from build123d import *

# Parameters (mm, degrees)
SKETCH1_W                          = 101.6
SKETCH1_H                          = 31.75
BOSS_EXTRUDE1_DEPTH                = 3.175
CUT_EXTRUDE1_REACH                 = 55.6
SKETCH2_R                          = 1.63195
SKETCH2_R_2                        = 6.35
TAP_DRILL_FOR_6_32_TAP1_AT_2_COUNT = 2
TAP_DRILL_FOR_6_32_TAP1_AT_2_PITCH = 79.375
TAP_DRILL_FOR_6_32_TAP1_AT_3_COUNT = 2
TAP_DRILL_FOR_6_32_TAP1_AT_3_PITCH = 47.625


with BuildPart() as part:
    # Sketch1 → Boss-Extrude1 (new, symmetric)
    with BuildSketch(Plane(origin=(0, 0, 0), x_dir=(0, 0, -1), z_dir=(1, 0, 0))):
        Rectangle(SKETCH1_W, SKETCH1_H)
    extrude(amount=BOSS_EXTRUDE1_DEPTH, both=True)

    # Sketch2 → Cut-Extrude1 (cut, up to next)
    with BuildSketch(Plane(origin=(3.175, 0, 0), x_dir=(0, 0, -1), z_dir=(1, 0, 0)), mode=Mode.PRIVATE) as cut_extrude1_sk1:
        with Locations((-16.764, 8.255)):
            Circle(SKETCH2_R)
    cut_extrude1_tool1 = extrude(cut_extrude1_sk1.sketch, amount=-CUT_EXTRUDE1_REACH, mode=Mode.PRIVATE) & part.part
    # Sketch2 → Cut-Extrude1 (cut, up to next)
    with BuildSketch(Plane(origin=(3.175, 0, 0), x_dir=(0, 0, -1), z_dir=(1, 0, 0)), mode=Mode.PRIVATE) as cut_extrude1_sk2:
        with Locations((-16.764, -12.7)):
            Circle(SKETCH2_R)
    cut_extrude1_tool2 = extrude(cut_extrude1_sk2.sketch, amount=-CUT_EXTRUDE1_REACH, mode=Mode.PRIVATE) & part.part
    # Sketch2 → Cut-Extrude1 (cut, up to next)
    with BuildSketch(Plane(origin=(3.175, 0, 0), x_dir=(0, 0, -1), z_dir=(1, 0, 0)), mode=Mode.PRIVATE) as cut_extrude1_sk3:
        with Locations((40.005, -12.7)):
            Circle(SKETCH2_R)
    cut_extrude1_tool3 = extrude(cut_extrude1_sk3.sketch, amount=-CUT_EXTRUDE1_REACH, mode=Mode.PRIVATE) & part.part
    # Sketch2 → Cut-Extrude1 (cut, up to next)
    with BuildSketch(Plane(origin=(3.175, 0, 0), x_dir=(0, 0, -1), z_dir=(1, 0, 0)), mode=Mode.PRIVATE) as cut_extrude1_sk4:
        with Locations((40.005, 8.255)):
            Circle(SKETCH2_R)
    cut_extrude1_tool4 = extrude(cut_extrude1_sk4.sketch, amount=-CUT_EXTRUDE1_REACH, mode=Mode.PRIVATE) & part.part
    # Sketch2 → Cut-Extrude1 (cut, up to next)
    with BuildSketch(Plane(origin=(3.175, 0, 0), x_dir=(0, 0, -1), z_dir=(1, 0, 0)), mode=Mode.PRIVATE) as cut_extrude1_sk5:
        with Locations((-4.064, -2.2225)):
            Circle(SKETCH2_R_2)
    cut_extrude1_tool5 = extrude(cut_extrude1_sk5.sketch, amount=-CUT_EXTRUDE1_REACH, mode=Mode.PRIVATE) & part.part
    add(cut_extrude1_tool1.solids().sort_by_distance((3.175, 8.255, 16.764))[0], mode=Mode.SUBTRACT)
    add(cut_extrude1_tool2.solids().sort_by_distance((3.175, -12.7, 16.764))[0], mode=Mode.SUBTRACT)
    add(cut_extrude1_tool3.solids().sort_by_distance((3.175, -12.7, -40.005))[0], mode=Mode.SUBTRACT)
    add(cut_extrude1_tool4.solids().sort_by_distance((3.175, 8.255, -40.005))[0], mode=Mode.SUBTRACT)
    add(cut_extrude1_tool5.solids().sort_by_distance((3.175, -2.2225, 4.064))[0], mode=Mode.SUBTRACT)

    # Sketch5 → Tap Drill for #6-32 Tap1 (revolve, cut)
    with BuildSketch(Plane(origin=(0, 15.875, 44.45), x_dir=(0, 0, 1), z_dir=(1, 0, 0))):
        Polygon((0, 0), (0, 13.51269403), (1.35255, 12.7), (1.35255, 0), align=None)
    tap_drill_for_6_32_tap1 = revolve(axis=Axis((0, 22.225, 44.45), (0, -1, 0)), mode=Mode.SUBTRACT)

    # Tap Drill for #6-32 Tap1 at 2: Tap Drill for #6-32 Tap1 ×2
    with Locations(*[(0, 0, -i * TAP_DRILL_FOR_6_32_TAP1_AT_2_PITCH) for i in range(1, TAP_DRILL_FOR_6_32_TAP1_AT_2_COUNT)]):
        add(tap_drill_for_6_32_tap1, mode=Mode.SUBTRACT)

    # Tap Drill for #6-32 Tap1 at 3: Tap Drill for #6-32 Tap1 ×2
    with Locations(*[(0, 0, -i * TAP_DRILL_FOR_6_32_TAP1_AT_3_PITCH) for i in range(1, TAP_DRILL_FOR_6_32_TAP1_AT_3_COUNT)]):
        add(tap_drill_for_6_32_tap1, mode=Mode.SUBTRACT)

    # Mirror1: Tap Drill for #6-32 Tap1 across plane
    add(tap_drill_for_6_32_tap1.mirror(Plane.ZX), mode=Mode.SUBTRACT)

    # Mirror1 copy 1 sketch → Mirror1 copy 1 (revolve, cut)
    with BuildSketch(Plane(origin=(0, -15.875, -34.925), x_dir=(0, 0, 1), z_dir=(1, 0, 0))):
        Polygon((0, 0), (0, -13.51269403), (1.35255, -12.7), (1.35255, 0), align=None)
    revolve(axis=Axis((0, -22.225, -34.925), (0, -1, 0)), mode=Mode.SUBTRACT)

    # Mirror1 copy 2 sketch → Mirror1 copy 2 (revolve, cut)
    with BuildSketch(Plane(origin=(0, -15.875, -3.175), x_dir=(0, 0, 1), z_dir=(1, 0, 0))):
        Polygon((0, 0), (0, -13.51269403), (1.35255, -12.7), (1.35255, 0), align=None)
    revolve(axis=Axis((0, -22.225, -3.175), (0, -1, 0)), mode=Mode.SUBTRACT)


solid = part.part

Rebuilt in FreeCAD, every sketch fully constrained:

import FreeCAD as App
import Part
import Sketcher
Q = App.Units.Quantity


def add_polygon(sketch, points):
    """Adds a closed chain of lines whose ends are joined by coincident constraints."""
    first, n = sketch.GeometryCount, len(points)
    for a, b in zip(points, points[1:] + points[:1]):
        sketch.addGeometry(Part.LineSegment(App.Vector(*a, 0), App.Vector(*b, 0)), False)
    for i in range(n):
        sketch.addConstraint(Sketcher.Constraint("Coincident", first + i, 2, first + (i + 1) % n, 1))

doc = App.newDocument("Part")
params = doc.addObject("Spreadsheet::Sheet", "Params")
for row, (alias, value) in enumerate([
    ("sketch1_height", "4 in"),
    ("sketch1_width", "1.25 in"),
    ("pad1_length", "0.25 in"),
    ("sketch6_diameter", "0.5 in"),
    ("sketch7_width", "0.5 in"),
    ("groove_angle", "360 deg"),
    ("linearpattern_pitch", "3.125 in"),
    ("linearpattern2_pitch", "1.875 in"),
    ("sketch8_width", "0.5 in"),
    ("groove2_angle", "360 deg"),
    ("sketch9_width", "0.5 in"),
    ("groove3_angle", "360 deg"),
], start=1):
    params.set(f"A{row}", alias)
    params.set(f"B{row}", "=" + value)
    params.setAlias(f"B{row}", alias)

body = doc.addObject("PartDesign::Body", "Body")

# Sketch on YZ plane
sketch1 = doc.addObject("Sketcher::SketchObject", "Sketch")
body.addObject(sketch1)
sketch1.AttachmentSupport = (doc.YZ_Plane, [""])
sketch1.MapMode = "FlatFace"
add_polygon(sketch1, [(16, 51), (-16, 51), (-16, -51), (16, -51)])  # lines 0-3
sketch1.addConstraint([
    Sketcher.Constraint("Horizontal", 0),
    Sketcher.Constraint("Vertical", 1),
    Sketcher.Constraint("Horizontal", 2),
    Sketcher.Constraint("Vertical", 3),
    Sketcher.Constraint("Symmetric", 0, 2, 2, 2, -1, 1),
    Sketcher.Constraint("DistanceY", 1, 2, 1, 1, Q("4 in")),
    Sketcher.Constraint("DistanceX", 0, 2, 0, 1, Q("1.25 in")),
])
sketch1.setExpression("Constraints[9]", "Params.sketch1_height")
sketch1.setExpression("Constraints[10]", "Params.sketch1_width")
pad1 = doc.addObject("PartDesign::Pad", "Pad")
body.addObject(pad1)
pad1.Profile = sketch1
pad1.setExpression("Length", "Params.pad1_length")
pad1.Midplane = True

# Sketch on YZ plane
sketch2 = doc.addObject("Sketcher::SketchObject", "Sketch001")
body.addObject(sketch2)
sketch2.AttachmentSupport = (doc.YZ_Plane, [""])
sketch2.MapMode = "FlatFace"
sketch2.AttachmentOffset = App.Placement(App.Vector(0, 0, 0.125 * 25.4), App.Rotation())
sketch2.addGeometry(Part.Circle(App.Vector(8.3, 16.8, 0), App.Vector(0, 0, 1), 1.6), False)
sketch2.addConstraint([
    Sketcher.Constraint("Diameter", 0, Q("0.1285 in")),
    Sketcher.Constraint("DistanceY", -1, 1, 0, 3, Q("0.66 in")),
    Sketcher.Constraint("DistanceX", -1, 1, 0, 3, Q("0.325 in")),
])
pocket1 = doc.addObject("PartDesign::Pocket", "Pocket")
body.addObject(pocket1)
pocket1.Profile = sketch2
pocket1.Type = "UpToFirst"

# Sketch on YZ plane
sketch3 = doc.addObject("Sketcher::SketchObject", "Sketch002")
body.addObject(sketch3)
sketch3.AttachmentSupport = (doc.YZ_Plane, [""])
sketch3.MapMode = "FlatFace"
sketch3.AttachmentOffset = App.Placement(App.Vector(0, 0, 0.125 * 25.4), App.Rotation())
sketch3.addGeometry(Part.Circle(App.Vector(-12.7, 16.8, 0), App.Vector(0, 0, 1), 1.6), False)
sketch3.addConstraint([
    Sketcher.Constraint("Diameter", 0, Q("0.1285 in")),
    Sketcher.Constraint("DistanceX", 0, 3, -1, 1, Q("0.5 in")),
    Sketcher.Constraint("DistanceY", -1, 1, 0, 3, Q("0.66 in")),
])
pocket2 = doc.addObject("PartDesign::Pocket", "Pocket001")
body.addObject(pocket2)
pocket2.Profile = sketch3
pocket2.Type = "UpToFirst"

# Sketch on YZ plane
sketch4 = doc.addObject("Sketcher::SketchObject", "Sketch003")
body.addObject(sketch4)
sketch4.AttachmentSupport = (doc.YZ_Plane, [""])
sketch4.MapMode = "FlatFace"
sketch4.AttachmentOffset = App.Placement(App.Vector(0, 0, 0.125 * 25.4), App.Rotation())
sketch4.addGeometry(Part.Circle(App.Vector(-12.7, -40, 0), App.Vector(0, 0, 1), 1.6), False)
sketch4.addConstraint([
    Sketcher.Constraint("Diameter", 0, Q("0.1285 in")),
    Sketcher.Constraint("DistanceX", 0, 3, -1, 1, Q("0.5 in")),
    Sketcher.Constraint("DistanceY", 0, 3, -1, 1, Q("1.575 in")),
])
pocket3 = doc.addObject("PartDesign::Pocket", "Pocket002")
body.addObject(pocket3)
pocket3.Profile = sketch4
pocket3.Type = "UpToFirst"

# Sketch on YZ plane
sketch5 = doc.addObject("Sketcher::SketchObject", "Sketch004")
body.addObject(sketch5)
sketch5.AttachmentSupport = (doc.YZ_Plane, [""])
sketch5.MapMode = "FlatFace"
sketch5.AttachmentOffset = App.Placement(App.Vector(0, 0, 0.125 * 25.4), App.Rotation())
sketch5.addGeometry(Part.Circle(App.Vector(8.3, -40, 0), App.Vector(0, 0, 1), 1.6), False)
sketch5.addConstraint([
    Sketcher.Constraint("Diameter", 0, Q("0.1285 in")),
    Sketcher.Constraint("DistanceX", -1, 1, 0, 3, Q("0.325 in")),
    Sketcher.Constraint("DistanceY", 0, 3, -1, 1, Q("1.575 in")),
])
pocket4 = doc.addObject("PartDesign::Pocket", "Pocket003")
body.addObject(pocket4)
pocket4.Profile = sketch5
pocket4.Type = "UpToFirst"

# Sketch on YZ plane
sketch6 = doc.addObject("Sketcher::SketchObject", "Sketch005")
body.addObject(sketch6)
sketch6.AttachmentSupport = (doc.YZ_Plane, [""])
sketch6.MapMode = "FlatFace"
sketch6.AttachmentOffset = App.Placement(App.Vector(0, 0, 0.125 * 25.4), App.Rotation())
sketch6.addGeometry(Part.Circle(App.Vector(-2, 4, 0), App.Vector(0, 0, 1), 6), False)
sketch6.addConstraint([
    Sketcher.Constraint("Diameter", 0, Q("0.5 in")),
    Sketcher.Constraint("DistanceY", -1, 1, 0, 3, Q("0.16 in")),
    Sketcher.Constraint("DistanceX", 0, 3, -1, 1, Q("0.0875 in")),
])
sketch6.setExpression("Constraints[0]", "Params.sketch6_diameter")
pocket5 = doc.addObject("PartDesign::Pocket", "Pocket004")
body.addObject(pocket5)
pocket5.Profile = sketch6
pocket5.Type = "UpToFirst"

# Sketch on YZ plane
sketch7 = doc.addObject("Sketcher::SketchObject", "Sketch006")
body.addObject(sketch7)
sketch7.AttachmentSupport = (doc.YZ_Plane, [""])
sketch7.MapMode = "FlatFace"
add_polygon(sketch7, [(2.4, 44.5), (15.9, 44.5), (15.9, 45.8), (3.2, 45.8)])  # lines 0-3
sketch7.addGeometry(Part.LineSegment(App.Vector(15.9, 44.5, 0), App.Vector(2.4, 44.5, 0)), True)  # axis
sketch7.addConstraint([
    Sketcher.Constraint("Horizontal", 0),
    Sketcher.Constraint("Vertical", 1),
    Sketcher.Constraint("Horizontal", 2),
    Sketcher.Constraint("Horizontal", 4),
    Sketcher.Constraint("Coincident", 4, 1, 0, 2),
    Sketcher.Constraint("Equal", 0, 4),
    Sketcher.Constraint("DistanceX", 2, 2, 2, 1, Q("0.5 in")),
    Sketcher.Constraint("Angle", 3, Q("-121 deg")),
    Sketcher.Constraint("DistanceY", -1, 1, 0, 2, Q("1.75 in")),
    Sketcher.Constraint("DistanceX", -1, 1, 0, 2, Q("0.625 in")),
    Sketcher.Constraint("DistanceY", 1, 1, 1, 2, Q("1.35255 mm")),
])
sketch7.setExpression("Constraints[10]", "Params.sketch7_width")
groove = doc.addObject("PartDesign::Groove", "Groove")
body.addObject(groove)
groove.Profile = sketch7
groove.ReferenceAxis = (sketch7, ["Axis0"])
groove.setExpression("Angle", "Params.groove_angle")
doc.recompute()

linearpattern = doc.addObject("PartDesign::LinearPattern", "LinearPattern")
body.addObject(linearpattern)
linearpattern.Originals = [groove]
linearpattern.Direction = (doc.Z_Axis, [""])
linearpattern.Mode = "offset"
linearpattern.setExpression("Offset", "Params.linearpattern_pitch")
linearpattern.Occurrences = 2
linearpattern.Reversed = True
body.Tip = linearpattern
doc.recompute()

linearpattern2 = doc.addObject("PartDesign::LinearPattern", "LinearPattern001")
body.addObject(linearpattern2)
linearpattern2.Originals = [groove]
linearpattern2.Direction = (doc.Z_Axis, [""])
linearpattern2.Mode = "offset"
linearpattern2.setExpression("Offset", "Params.linearpattern2_pitch")
linearpattern2.Occurrences = 2
linearpattern2.Reversed = True
body.Tip = linearpattern2
doc.recompute()

mirrored = doc.addObject("PartDesign::Mirrored", "Mirrored")
body.addObject(mirrored)
mirrored.Originals = [groove]
mirrored.MirrorPlane = (doc.XZ_Plane, [""])
body.Tip = mirrored

# Sketch on YZ plane
sketch8 = doc.addObject("Sketcher::SketchObject", "Sketch007")
body.addObject(sketch8)
sketch8.AttachmentSupport = (doc.YZ_Plane, [""])
sketch8.MapMode = "FlatFace"
add_polygon(sketch8, [(-15.9, -34.9), (-2.4, -34.9), (-3.2, -33.6), (-15.9, -33.6)])  # lines 0-3
sketch8.addGeometry(Part.LineSegment(App.Vector(-2.4, -34.9, 0), App.Vector(-15.9, -34.9, 0)), True)  # axis
sketch8.addConstraint([
    Sketcher.Constraint("Horizontal", 0),
    Sketcher.Constraint("Horizontal", 2),
    Sketcher.Constraint("Vertical", 3),
    Sketcher.Constraint("Horizontal", 4),
    Sketcher.Constraint("Coincident", 4, 1, 0, 2),
    Sketcher.Constraint("Vertical", 2, 2, 4, 2),
    Sketcher.Constraint("DistanceX", 2, 2, 2, 1, Q("0.5 in")),
    Sketcher.Constraint("Angle", 1, Q("121 deg")),
    Sketcher.Constraint("DistanceY", 0, 2, -1, 1, Q("1.375 in")),
    Sketcher.Constraint("DistanceX", 1, 2, -1, 1, Q("0.125 in")),
    Sketcher.Constraint("DistanceY", 3, 2, 3, 1, Q("1.35255 mm")),
])
sketch8.setExpression("Constraints[10]", "Params.sketch8_width")
groove2 = doc.addObject("PartDesign::Groove", "Groove001")
body.addObject(groove2)
groove2.Profile = sketch8
groove2.ReferenceAxis = (sketch8, ["Axis0"])
groove2.setExpression("Angle", "Params.groove2_angle")

# Sketch on YZ plane
sketch9 = doc.addObject("Sketcher::SketchObject", "Sketch008")
body.addObject(sketch9)
sketch9.AttachmentSupport = (doc.YZ_Plane, [""])
sketch9.MapMode = "FlatFace"
add_polygon(sketch9, [(-15.9, -3.2), (-2.4, -3.2), (-3.2, -1.8), (-15.9, -1.8)])  # lines 0-3
sketch9.addGeometry(Part.LineSegment(App.Vector(-2.4, -3.2, 0), App.Vector(-15.9, -3.2, 0)), True)  # axis
sketch9.addConstraint([
    Sketcher.Constraint("Horizontal", 0),
    Sketcher.Constraint("Horizontal", 2),
    Sketcher.Constraint("Vertical", 3),
    Sketcher.Constraint("Horizontal", 4),
    Sketcher.Constraint("Coincident", 4, 1, 0, 2),
    Sketcher.Constraint("Vertical", 2, 2, 4, 2),
    Sketcher.Constraint("DistanceX", 2, 2, 2, 1, Q("0.5 in")),
    Sketcher.Constraint("Angle", 1, Q("121 deg")),
    Sketcher.Constraint("DistanceY", 0, 2, -1, 1, Q("0.125 in")),
    Sketcher.Constraint("DistanceX", 1, 2, -1, 1, Q("0.125 in")),
    Sketcher.Constraint("DistanceY", 3, 2, 3, 1, Q("1.35255 mm")),
])
sketch9.setExpression("Constraints[10]", "Params.sketch9_width")
groove3 = doc.addObject("PartDesign::Groove", "Groove002")
body.addObject(groove3)
groove3.Profile = sketch9
groove3.ReferenceAxis = (sketch9, ["Axis0"])
groove3.setExpression("Angle", "Params.groove3_angle")

doc.recompute()
